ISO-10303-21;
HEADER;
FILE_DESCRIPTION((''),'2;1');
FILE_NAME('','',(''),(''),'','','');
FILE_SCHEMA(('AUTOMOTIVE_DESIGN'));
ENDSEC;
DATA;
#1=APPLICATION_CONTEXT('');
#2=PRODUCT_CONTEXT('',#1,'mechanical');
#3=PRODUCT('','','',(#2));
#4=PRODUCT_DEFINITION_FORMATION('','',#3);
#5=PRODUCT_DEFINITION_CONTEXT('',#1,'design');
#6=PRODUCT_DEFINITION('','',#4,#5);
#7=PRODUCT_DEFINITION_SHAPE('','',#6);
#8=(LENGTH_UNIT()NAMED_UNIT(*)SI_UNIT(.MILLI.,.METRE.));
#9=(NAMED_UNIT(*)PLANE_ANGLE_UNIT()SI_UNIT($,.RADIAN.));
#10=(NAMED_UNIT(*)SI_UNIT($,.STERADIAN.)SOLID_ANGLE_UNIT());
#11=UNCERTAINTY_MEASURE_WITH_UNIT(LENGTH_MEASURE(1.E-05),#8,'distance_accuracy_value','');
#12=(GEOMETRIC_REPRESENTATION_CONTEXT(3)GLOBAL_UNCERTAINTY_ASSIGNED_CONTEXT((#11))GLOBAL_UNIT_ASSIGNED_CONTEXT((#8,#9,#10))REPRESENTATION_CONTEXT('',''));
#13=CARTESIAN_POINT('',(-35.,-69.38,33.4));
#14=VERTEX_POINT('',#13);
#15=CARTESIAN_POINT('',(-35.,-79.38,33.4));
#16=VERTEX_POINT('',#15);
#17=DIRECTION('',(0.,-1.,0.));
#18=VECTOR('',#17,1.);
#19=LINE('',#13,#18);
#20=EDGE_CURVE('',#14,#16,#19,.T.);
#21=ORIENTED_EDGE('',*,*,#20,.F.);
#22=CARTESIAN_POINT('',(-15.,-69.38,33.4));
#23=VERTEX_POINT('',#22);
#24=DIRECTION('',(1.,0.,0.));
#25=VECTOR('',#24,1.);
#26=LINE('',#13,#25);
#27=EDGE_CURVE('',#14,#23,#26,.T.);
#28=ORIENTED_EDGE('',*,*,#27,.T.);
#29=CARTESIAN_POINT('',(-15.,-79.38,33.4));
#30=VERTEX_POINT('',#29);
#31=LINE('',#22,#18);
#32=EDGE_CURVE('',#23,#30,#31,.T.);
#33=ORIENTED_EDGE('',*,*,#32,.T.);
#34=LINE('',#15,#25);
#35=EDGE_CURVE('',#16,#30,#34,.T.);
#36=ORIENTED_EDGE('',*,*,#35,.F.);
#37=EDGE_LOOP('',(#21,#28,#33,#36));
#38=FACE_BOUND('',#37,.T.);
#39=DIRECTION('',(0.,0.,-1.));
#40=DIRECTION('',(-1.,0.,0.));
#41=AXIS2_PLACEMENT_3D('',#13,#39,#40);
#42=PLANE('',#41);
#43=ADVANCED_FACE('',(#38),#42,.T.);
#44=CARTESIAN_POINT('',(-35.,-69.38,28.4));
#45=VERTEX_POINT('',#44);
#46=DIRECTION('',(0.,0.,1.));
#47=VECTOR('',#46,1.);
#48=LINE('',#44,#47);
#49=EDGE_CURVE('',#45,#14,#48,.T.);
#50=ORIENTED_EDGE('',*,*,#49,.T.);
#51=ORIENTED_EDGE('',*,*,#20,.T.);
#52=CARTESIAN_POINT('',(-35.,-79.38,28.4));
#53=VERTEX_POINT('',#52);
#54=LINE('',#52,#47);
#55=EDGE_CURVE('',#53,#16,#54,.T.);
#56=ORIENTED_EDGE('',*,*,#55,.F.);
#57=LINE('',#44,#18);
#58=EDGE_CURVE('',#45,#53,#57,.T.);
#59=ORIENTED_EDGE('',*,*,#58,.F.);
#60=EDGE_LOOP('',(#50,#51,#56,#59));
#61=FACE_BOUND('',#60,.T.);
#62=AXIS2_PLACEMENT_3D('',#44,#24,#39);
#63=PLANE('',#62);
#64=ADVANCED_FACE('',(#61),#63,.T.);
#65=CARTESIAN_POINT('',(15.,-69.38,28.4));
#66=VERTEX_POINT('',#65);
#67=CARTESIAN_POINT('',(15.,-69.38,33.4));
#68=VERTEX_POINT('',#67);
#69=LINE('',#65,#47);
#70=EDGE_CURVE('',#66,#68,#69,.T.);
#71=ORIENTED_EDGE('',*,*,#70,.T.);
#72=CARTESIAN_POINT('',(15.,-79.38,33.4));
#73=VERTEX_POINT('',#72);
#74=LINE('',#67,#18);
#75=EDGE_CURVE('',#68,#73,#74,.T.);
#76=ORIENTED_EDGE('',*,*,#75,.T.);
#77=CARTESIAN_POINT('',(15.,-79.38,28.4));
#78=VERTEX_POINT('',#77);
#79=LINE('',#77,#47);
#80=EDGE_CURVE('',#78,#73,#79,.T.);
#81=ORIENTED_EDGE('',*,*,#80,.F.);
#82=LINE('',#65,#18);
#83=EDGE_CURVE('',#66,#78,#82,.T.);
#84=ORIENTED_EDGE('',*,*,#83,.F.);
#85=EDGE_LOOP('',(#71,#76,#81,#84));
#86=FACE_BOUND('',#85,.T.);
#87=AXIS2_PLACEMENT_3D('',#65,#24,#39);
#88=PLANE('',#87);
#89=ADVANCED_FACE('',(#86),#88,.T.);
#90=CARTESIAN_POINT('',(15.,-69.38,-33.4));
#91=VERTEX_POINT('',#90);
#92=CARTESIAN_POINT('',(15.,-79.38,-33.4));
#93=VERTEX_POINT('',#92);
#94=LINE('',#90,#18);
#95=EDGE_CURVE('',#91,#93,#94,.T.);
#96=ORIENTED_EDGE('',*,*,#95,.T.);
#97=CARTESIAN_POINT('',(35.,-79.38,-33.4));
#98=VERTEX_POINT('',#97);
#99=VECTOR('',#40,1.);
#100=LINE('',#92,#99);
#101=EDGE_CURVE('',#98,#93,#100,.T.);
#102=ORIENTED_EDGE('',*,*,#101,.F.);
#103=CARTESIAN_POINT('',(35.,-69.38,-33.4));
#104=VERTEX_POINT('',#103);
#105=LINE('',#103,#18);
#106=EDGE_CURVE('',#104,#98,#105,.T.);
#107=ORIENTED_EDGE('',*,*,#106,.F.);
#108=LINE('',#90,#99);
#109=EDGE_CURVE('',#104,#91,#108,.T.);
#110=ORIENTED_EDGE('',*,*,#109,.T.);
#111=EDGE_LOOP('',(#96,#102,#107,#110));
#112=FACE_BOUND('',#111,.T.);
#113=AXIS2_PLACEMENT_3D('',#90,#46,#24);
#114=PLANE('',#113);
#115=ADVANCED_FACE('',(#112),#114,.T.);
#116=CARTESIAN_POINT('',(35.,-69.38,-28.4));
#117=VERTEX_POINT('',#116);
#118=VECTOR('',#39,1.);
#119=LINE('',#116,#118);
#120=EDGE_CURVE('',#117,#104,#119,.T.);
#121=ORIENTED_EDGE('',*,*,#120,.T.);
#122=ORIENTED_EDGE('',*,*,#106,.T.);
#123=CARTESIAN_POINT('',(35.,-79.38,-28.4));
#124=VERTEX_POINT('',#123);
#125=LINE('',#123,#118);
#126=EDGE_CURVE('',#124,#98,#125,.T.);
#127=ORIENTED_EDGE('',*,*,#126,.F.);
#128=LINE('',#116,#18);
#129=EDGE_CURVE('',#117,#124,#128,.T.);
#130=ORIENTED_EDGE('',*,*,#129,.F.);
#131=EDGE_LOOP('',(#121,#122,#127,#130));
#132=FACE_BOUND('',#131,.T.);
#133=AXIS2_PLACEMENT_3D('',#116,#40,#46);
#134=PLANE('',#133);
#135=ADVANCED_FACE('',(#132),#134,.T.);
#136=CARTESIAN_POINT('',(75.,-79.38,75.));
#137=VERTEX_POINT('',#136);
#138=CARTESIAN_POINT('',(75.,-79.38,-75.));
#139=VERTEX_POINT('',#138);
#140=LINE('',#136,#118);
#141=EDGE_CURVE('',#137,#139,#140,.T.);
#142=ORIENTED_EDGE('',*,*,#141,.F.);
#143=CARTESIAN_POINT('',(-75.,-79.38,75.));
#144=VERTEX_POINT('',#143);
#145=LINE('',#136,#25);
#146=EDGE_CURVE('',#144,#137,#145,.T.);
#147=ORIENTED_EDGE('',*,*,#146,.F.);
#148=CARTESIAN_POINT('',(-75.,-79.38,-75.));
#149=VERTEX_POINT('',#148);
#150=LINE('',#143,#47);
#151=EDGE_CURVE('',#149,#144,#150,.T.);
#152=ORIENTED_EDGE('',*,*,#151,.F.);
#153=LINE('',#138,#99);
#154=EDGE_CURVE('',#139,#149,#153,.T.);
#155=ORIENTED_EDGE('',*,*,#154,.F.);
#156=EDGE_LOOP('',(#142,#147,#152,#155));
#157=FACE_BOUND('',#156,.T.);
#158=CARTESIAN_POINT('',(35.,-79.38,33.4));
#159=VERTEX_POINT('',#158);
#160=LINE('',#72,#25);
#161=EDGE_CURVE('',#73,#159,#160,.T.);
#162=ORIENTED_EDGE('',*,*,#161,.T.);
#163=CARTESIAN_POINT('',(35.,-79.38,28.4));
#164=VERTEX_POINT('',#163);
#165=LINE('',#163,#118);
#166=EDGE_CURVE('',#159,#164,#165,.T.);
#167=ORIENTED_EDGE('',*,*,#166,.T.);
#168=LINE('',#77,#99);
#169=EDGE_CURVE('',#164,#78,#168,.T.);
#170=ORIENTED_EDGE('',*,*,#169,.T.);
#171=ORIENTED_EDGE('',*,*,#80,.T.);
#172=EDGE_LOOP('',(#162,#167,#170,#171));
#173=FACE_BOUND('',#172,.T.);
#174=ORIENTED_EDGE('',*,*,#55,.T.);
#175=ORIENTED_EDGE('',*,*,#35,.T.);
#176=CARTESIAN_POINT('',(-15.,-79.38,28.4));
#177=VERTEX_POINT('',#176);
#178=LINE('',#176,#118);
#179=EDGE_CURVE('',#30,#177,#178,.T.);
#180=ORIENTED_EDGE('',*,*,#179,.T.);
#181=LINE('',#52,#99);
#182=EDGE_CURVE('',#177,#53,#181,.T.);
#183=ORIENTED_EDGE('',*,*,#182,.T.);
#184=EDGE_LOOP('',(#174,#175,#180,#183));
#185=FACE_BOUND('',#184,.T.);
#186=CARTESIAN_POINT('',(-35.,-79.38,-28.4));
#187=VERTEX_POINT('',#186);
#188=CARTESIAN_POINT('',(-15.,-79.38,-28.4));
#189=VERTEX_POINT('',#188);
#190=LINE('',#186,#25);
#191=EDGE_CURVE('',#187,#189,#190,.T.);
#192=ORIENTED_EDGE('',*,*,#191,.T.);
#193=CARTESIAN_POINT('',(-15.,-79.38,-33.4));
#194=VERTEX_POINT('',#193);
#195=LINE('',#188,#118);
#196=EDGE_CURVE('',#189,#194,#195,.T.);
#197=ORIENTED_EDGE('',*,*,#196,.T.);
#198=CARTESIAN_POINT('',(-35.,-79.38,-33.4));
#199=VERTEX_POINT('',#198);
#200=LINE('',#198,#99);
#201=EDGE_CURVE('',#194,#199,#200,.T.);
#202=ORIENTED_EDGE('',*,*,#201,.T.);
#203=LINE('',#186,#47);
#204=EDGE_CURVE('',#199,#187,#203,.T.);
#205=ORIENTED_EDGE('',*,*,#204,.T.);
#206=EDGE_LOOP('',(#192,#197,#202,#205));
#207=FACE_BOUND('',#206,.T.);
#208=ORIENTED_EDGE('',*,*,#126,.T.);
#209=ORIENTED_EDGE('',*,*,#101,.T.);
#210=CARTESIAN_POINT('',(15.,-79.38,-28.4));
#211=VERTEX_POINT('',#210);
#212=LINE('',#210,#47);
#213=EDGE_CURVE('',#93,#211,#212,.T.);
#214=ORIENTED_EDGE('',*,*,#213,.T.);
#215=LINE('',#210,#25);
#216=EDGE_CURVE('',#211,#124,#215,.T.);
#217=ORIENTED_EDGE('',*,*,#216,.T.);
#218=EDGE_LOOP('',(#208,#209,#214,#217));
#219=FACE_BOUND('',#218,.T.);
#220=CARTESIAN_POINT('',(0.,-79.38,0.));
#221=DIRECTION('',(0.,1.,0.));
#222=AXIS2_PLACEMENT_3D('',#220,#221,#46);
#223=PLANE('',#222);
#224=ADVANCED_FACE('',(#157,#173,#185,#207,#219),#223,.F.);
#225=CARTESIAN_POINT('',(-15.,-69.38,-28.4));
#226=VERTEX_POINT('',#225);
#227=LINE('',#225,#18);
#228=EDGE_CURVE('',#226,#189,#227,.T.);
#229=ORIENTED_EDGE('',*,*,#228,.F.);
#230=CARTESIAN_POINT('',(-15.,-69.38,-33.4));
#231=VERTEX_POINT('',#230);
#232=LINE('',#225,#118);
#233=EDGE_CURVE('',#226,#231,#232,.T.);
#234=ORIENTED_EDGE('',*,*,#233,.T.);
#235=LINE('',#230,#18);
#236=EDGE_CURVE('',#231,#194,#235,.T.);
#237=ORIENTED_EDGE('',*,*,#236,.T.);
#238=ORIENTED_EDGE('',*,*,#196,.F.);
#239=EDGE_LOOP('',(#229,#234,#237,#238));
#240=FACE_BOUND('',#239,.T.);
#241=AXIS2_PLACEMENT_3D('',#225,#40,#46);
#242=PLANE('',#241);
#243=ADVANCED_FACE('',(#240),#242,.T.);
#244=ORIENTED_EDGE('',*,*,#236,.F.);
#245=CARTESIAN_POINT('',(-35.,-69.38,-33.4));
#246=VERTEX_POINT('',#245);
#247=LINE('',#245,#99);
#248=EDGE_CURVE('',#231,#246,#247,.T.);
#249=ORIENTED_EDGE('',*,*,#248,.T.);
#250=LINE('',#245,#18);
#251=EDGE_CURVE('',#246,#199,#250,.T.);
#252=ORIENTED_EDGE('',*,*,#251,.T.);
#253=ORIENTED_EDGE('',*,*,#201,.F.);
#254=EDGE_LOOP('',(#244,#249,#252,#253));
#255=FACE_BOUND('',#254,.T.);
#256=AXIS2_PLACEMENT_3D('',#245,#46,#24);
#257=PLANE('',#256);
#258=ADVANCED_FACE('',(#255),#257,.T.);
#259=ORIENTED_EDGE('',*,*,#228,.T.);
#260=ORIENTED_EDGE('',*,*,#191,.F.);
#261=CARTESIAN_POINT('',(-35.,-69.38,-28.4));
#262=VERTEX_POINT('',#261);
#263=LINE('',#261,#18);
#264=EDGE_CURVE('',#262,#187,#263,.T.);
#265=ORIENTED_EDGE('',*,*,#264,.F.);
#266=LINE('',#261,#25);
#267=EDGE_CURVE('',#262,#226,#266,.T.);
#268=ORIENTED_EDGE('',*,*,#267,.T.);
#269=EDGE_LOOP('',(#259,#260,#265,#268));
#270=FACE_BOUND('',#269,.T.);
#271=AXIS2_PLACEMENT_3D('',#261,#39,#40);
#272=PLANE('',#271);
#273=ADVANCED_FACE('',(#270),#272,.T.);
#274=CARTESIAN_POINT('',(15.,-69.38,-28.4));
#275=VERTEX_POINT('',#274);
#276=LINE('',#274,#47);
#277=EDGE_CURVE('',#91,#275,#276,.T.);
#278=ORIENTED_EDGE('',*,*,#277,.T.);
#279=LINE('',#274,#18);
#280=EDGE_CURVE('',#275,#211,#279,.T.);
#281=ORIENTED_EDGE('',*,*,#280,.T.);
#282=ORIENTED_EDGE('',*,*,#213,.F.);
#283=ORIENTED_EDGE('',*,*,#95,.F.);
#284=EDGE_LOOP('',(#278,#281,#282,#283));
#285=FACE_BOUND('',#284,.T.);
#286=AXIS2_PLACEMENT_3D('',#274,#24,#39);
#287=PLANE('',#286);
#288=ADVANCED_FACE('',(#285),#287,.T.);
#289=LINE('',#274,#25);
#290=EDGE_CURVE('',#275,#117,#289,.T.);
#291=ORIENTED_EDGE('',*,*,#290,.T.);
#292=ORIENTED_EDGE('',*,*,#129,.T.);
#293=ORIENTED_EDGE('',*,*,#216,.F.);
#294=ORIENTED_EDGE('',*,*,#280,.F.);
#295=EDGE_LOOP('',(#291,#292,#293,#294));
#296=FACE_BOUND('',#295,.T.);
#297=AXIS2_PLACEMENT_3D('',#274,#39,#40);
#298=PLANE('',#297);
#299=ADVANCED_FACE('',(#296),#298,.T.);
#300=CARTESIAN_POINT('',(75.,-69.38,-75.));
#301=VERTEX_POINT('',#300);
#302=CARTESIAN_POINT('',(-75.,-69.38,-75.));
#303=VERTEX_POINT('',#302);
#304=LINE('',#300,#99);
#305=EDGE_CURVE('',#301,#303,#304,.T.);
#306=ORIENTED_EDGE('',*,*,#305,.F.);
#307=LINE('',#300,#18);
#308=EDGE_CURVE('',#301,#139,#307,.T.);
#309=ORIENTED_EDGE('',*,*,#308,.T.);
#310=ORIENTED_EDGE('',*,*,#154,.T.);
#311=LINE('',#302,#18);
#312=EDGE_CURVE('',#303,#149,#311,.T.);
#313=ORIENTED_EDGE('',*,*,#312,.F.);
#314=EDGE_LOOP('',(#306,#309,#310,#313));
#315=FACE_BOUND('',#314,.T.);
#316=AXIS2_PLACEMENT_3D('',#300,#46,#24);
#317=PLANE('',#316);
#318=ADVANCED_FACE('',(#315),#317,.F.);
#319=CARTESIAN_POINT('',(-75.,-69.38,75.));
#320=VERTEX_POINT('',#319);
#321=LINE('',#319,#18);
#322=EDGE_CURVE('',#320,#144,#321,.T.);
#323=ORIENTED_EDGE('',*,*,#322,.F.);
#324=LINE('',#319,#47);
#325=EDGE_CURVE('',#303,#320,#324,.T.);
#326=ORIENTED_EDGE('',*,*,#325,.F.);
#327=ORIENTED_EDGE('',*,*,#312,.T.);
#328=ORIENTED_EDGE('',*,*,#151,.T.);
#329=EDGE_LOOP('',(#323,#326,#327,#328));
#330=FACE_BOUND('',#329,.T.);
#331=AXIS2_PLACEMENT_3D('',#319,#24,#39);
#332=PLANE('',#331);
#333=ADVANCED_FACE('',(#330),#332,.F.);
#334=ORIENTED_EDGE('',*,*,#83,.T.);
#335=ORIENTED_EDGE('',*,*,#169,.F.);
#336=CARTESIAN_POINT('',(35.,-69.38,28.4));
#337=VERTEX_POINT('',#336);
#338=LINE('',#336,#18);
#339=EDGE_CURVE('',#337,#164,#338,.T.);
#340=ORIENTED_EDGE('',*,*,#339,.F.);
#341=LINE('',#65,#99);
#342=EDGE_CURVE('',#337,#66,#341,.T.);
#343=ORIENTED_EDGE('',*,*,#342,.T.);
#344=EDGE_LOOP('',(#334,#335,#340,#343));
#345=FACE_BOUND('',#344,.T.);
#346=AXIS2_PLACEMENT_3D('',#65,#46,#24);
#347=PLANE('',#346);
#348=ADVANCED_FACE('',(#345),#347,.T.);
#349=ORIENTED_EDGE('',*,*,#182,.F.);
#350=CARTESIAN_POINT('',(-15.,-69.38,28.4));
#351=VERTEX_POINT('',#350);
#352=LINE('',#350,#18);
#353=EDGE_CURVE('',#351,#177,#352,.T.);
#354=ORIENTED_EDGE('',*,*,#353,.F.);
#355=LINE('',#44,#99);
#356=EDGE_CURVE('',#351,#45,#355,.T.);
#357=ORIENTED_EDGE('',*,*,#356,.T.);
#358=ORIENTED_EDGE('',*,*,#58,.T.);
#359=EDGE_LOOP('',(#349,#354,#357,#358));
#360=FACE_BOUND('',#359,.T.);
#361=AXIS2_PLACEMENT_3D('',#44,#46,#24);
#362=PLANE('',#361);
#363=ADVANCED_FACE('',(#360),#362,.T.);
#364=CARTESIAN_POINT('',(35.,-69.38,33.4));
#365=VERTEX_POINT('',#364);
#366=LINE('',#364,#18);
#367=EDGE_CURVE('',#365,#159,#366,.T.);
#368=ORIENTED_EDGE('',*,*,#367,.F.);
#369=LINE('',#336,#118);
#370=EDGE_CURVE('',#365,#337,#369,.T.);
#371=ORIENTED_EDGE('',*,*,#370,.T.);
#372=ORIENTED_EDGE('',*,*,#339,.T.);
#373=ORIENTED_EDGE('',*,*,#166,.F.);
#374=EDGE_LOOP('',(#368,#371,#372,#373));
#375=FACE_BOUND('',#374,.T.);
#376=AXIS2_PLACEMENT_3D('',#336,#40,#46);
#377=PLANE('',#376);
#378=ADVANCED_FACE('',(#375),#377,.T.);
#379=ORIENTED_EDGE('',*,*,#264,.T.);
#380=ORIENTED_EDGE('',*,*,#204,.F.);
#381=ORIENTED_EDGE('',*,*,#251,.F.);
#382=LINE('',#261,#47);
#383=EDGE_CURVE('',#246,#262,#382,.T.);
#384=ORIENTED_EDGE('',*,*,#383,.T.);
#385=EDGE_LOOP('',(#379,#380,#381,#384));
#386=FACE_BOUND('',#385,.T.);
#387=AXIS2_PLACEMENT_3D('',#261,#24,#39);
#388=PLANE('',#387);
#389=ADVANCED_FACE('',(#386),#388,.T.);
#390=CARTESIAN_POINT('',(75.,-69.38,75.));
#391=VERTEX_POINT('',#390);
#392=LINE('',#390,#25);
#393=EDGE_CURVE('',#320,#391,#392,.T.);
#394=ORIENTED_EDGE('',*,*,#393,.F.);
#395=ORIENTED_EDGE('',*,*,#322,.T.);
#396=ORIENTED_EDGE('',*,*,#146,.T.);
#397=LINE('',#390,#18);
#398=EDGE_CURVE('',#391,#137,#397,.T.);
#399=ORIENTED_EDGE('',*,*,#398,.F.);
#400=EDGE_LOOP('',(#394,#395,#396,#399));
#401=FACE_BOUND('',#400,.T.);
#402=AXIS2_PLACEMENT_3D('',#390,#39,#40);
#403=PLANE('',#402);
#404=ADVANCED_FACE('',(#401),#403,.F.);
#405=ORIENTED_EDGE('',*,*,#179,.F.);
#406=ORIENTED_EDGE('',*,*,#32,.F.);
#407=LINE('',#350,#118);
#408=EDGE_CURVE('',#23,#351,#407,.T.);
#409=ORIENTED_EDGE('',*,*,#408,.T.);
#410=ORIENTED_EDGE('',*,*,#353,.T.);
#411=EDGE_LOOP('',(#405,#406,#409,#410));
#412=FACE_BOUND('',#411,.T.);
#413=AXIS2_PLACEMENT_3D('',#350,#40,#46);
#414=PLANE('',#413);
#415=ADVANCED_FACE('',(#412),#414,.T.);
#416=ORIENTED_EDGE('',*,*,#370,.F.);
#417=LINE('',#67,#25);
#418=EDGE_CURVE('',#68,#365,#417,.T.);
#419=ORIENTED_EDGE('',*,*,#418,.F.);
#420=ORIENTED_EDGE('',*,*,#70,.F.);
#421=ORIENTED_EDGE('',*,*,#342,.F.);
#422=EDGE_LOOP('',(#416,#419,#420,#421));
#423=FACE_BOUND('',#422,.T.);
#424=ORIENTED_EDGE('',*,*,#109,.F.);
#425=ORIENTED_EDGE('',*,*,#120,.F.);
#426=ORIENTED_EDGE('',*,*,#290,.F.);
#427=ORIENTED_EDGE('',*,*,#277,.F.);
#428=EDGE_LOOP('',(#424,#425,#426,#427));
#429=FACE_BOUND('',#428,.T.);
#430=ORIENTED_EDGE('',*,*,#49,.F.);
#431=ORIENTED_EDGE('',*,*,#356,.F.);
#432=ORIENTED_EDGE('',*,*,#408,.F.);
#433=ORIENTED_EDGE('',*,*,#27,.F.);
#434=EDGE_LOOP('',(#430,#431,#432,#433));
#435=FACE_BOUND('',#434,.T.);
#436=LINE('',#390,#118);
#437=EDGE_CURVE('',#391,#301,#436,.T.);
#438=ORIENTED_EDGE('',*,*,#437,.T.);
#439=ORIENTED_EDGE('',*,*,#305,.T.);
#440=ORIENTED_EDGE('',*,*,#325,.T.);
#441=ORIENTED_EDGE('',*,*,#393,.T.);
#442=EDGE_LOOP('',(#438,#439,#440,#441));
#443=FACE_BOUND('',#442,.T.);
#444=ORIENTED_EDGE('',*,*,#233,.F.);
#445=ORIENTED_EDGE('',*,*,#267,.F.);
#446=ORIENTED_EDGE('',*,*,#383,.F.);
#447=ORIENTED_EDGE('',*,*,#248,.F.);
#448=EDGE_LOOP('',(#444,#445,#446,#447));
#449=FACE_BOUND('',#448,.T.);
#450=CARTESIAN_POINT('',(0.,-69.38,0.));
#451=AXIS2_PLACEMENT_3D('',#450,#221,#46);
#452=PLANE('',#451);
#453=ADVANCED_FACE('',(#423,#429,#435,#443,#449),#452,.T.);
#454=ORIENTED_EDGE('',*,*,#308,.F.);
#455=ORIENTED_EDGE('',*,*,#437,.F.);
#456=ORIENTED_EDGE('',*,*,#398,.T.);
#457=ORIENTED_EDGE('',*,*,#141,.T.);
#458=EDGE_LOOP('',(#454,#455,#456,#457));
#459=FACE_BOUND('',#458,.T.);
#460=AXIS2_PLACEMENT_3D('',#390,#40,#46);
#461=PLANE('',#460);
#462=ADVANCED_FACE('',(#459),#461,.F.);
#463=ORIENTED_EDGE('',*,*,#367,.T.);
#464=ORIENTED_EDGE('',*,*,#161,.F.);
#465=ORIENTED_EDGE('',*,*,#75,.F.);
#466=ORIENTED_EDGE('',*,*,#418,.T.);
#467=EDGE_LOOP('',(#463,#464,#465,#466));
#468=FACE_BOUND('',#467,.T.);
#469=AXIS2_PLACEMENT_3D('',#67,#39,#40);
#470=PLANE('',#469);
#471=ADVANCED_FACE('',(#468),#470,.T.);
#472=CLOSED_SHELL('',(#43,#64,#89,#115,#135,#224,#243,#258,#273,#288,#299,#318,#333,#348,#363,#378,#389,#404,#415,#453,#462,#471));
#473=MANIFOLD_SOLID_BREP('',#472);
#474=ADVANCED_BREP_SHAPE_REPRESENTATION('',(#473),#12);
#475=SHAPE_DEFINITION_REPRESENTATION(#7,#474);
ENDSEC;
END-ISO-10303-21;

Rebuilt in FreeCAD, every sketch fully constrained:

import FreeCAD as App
import Part
import Sketcher
from FreeCAD import Vector
Q = App.Units.Quantity


def add_polygon(sketch, points):
    """Adds a closed chain of lines whose ends are joined by coincident constraints."""
    first, n = sketch.GeometryCount, len(points)
    for a, b in zip(points, points[1:] + points[:1]):
        sketch.addGeometry(Part.LineSegment(App.Vector(*a, 0), App.Vector(*b, 0)), False)
    for i in range(n):
        sketch.addConstraint(Sketcher.Constraint("Coincident", first + i, 2, first + (i + 1) % n, 1))

doc = App.newDocument("Part")
body = doc.addObject("PartDesign::Body", "Body")

sketch1 = doc.addObject("Sketcher::SketchObject", "Sketch")
body.addObject(sketch1)
sketch1.AttachmentSupport = (doc.XZ_Plane, [""])
sketch1.MapMode = "FlatFace"
add_polygon(sketch1, [(-75, -75), (-75, 75), (75, 75), (75, -75)])
add_polygon(sketch1, [(-15, 33), (-35, 33), (-35, 28), (-15, 28)])
add_polygon(sketch1, [(35, 33), (15, 33), (15, 28), (35, 28)])
add_polygon(sketch1, [(-15, -28), (-35, -28), (-35, -33), (-15, -33)])
add_polygon(sketch1, [(35, -28), (15, -28), (15, -33), (35, -33)])
sketch1.addConstraint([
    Sketcher.Constraint("Vertical", 0),
    Sketcher.Constraint("Horizontal", 1),
    Sketcher.Constraint("Vertical", 2),
    Sketcher.Constraint("Horizontal", 3),
    Sketcher.Constraint("Horizontal", 4),
    Sketcher.Constraint("Vertical", 5),
    Sketcher.Constraint("Horizontal", 6),
    Sketcher.Constraint("Vertical", 7),
    Sketcher.Constraint("Horizontal", 8),
    Sketcher.Constraint("Vertical", 9),
    Sketcher.Constraint("Horizontal", 10),
    Sketcher.Constraint("Vertical", 11),
    Sketcher.Constraint("Horizontal", 12),
    Sketcher.Constraint("Vertical", 13),
    Sketcher.Constraint("Horizontal", 14),
    Sketcher.Constraint("Vertical", 15),
    Sketcher.Constraint("Horizontal", 16),
    Sketcher.Constraint("Vertical", 17),
    Sketcher.Constraint("Horizontal", 18),
    Sketcher.Constraint("Vertical", 19),
    Sketcher.Constraint("Symmetric", 0, 2, 2, 2, -1, 1),
    Sketcher.Constraint("Symmetric", 10, 2, 12, 2, -1, 1),
    Sketcher.Constraint("Symmetric", 8, 2, 14, 2, -1, 1),
    Sketcher.Constraint("Symmetric", 6, 2, 16, 2, -1, 1),
    Sketcher.Constraint("Symmetric", 4, 2, 18, 2, -1, 1),
    Sketcher.Constraint("Symmetric", 7, 2, 8, 2, -2),
    Sketcher.Constraint("Symmetric", 5, 2, 10, 2, -2),
    Sketcher.Constraint("Equal", 3, 0),
    Sketcher.Constraint("DistanceX", 1, 1, 1, 2, Q("150 mm")),
    Sketcher.Constraint("DistanceX", 4, 2, 4, 1, Q("20 mm")),
    Sketcher.Constraint("DistanceY", 5, 2, 5, 1, Q("5 mm")),
    Sketcher.Constraint("DistanceX", 4, 2, -1, 1, Q("35 mm")),
    Sketcher.Constraint("DistanceY", -1, 1, 4, 2, Q("33.4 mm")),
])
pad1 = doc.addObject("PartDesign::Pad", "Pad")
body.addObject(pad1)
pad1.Profile = sketch1
pad1.Length = 10
pad1.Midplane = True
body2 = doc.addObject("PartDesign::Body", "Body001")
doc.recompute()

body.Placement = App.Placement(Vector(0, -74.38, 0), App.Rotation(Vector(0, 0, 1), 0))
boolean = doc.addObject("PartDesign::Boolean", "Boolean")
body2.addObject(boolean)
boolean.Type = "Fuse"
boolean.addObjects([body])

doc.recompute()
